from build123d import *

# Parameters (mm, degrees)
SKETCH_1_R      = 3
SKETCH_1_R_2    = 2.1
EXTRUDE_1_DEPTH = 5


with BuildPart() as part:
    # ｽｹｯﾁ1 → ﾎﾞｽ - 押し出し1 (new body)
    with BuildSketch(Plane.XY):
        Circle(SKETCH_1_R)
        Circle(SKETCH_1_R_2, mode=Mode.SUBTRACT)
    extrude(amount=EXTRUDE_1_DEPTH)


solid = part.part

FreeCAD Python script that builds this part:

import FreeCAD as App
import Part
import Sketcher
Q = App.Units.Quantity

doc = App.newDocument("Part")
body = doc.addObject("PartDesign::Body", "Body")

# Sketch on XY plane
sketch1 = body.newObject("Sketcher::SketchObject", "Sketch")
sketch1.AttachmentSupport = (doc.getObject("XY_Plane"), [""])
sketch1.MapMode = "FlatFace"
sketch1.addGeometry([
    Part.Circle(App.Vector(0, 0, 0), App.Vector(0, 0, 1), 3),
    Part.Circle(App.Vector(0, 0, 0), App.Vector(0, 0, 1), 2.1),
], False)
sketch1.addConstraint([
    Sketcher.Constraint("Coincident", 0, 3, -1, 1),
    Sketcher.Constraint("Coincident", 1, 3, -1, 1),
    Sketcher.Constraint("Diameter", 0, Q("6 mm")),
    Sketcher.Constraint("Diameter", 1, Q("4.2 mm")),
])
pad1 = body.newObject("PartDesign::Pad", "Pad")
pad1.Profile = sketch1
pad1.Length = 5

doc.recompute()
